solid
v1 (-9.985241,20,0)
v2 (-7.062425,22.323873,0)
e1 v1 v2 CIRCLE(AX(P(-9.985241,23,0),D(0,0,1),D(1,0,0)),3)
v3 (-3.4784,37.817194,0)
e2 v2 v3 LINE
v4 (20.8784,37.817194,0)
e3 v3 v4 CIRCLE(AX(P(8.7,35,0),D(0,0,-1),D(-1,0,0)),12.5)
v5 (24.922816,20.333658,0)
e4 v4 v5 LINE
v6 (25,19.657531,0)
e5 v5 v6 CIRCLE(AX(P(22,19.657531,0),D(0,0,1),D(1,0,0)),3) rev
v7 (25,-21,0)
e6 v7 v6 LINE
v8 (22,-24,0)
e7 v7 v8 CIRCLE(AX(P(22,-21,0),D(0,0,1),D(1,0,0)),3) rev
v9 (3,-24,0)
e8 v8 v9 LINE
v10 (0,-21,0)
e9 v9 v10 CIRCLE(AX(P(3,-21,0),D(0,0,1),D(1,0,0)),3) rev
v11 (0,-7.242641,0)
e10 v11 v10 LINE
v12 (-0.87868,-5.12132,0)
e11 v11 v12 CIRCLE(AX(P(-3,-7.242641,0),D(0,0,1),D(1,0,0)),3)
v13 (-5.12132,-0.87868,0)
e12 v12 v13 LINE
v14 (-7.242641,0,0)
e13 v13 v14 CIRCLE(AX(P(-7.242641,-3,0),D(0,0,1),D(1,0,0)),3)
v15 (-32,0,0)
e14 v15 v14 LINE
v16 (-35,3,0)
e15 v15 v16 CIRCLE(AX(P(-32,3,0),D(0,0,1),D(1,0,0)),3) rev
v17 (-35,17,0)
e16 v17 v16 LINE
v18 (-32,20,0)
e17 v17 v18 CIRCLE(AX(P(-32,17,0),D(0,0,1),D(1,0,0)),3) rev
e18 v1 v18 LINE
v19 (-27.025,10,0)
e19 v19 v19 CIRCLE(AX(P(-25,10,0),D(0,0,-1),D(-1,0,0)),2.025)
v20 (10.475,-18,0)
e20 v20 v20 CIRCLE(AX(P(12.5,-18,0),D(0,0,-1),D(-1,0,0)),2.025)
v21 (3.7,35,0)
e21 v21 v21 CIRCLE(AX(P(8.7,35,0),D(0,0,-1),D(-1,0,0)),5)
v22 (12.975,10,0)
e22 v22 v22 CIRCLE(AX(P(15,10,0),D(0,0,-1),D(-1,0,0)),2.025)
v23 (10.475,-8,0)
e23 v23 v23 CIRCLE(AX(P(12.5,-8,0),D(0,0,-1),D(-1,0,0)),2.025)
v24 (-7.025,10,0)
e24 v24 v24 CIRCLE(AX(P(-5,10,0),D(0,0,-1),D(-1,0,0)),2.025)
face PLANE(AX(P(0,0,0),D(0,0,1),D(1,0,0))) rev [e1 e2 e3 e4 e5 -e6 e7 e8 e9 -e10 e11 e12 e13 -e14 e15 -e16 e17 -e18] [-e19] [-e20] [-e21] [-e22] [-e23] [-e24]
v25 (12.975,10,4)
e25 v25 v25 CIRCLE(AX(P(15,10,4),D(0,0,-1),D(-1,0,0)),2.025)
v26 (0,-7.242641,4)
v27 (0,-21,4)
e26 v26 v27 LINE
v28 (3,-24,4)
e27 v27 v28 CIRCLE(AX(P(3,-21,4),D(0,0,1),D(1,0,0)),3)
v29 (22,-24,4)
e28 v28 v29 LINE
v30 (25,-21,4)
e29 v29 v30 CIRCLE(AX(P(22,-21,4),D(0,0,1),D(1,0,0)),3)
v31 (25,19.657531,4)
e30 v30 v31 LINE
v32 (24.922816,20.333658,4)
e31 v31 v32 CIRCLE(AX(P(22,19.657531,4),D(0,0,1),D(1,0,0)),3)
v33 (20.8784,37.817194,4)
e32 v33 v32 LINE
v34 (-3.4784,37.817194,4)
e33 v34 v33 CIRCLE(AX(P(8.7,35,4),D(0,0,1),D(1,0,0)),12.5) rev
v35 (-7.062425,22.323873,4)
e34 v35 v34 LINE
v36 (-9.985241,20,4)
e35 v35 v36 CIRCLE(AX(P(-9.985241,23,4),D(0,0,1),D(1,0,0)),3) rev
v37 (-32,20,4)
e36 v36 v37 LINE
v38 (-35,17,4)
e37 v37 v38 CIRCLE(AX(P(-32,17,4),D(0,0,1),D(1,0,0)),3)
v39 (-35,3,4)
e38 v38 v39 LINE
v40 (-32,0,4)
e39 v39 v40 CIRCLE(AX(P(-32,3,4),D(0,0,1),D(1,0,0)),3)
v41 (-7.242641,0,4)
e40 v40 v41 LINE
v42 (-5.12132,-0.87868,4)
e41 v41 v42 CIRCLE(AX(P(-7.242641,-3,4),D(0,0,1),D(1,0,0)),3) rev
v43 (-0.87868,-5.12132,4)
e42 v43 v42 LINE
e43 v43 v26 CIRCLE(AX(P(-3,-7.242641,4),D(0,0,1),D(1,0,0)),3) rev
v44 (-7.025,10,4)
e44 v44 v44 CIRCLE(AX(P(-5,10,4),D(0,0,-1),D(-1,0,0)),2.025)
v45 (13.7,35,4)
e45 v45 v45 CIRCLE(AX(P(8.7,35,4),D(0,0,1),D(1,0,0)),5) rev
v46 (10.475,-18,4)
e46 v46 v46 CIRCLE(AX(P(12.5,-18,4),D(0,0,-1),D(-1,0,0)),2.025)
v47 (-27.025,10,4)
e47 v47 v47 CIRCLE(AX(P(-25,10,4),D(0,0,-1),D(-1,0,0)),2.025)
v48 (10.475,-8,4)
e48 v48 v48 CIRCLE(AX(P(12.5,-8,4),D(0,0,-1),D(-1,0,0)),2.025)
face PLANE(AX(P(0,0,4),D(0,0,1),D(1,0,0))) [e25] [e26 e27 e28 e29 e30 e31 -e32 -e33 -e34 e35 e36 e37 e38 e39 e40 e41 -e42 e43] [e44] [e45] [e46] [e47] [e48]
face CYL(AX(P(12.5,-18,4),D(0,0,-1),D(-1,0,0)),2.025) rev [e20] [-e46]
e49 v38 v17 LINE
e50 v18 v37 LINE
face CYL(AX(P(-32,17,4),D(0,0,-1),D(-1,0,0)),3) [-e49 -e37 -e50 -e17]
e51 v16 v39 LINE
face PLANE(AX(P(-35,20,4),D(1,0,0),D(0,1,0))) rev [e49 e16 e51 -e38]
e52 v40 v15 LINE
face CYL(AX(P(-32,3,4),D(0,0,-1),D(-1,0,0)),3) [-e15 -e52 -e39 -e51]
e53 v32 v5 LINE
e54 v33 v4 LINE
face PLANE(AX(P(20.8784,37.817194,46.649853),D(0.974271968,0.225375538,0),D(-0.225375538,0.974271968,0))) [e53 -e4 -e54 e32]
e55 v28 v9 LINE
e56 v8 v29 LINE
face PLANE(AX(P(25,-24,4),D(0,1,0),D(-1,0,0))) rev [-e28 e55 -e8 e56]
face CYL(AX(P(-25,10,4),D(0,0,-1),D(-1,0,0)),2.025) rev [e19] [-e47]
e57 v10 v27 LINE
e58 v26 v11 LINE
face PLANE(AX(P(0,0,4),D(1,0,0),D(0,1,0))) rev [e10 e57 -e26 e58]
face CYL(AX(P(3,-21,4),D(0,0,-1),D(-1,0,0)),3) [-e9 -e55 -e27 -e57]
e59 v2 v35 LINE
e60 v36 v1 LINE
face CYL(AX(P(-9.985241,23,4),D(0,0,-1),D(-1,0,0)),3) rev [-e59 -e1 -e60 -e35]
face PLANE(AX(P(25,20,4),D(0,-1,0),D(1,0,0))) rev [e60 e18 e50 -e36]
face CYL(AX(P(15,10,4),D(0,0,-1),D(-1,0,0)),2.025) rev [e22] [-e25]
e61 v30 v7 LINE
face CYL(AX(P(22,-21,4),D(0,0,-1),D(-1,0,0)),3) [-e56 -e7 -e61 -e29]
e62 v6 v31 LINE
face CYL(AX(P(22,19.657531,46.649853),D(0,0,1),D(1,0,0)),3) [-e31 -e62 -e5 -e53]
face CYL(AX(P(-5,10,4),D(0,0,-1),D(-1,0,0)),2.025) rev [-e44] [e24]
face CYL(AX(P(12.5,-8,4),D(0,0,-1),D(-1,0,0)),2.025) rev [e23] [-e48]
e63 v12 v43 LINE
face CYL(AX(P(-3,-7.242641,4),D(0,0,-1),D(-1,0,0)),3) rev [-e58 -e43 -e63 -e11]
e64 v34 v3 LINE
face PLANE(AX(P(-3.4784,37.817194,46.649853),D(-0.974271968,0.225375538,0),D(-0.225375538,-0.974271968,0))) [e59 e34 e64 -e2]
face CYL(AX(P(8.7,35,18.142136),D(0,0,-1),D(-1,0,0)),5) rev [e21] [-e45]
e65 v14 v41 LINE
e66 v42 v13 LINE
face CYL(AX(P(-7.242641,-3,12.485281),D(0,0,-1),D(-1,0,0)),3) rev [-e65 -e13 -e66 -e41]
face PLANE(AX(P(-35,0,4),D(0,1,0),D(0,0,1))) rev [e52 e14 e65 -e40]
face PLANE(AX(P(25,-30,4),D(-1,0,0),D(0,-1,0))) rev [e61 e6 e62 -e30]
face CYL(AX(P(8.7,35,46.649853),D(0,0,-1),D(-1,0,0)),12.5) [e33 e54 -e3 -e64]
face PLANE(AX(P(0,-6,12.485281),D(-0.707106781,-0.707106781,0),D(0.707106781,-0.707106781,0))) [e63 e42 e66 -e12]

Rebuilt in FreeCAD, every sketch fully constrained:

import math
import FreeCAD as App
import Part
import Sketcher
from FreeCAD import Vector
Q = App.Units.Quantity


def edges_at(feature, points):
    """Names of the edges that pass closest to the given points."""
    edges = feature.Shape.Edges
    near = lambda p: min(range(len(edges)), key=lambda i: edges[i].distToShape(Part.Vertex(*p))[0])
    return sorted({f"Edge{near(p) + 1}" for p in points})

doc = App.newDocument("Part")
body = doc.addObject("PartDesign::Body", "Body")

# Sketch on XY plane
sketch1 = body.newObject("Sketcher::SketchObject", "Sketch")
sketch1.AttachmentSupport = (doc.getObject("XY_Plane"), [""])
sketch1.MapMode = "FlatFace"
sketch1.addGeometry(Part.LineSegment(Vector(-35, 0, 0), Vector(0, 0, 0)), False)
sketch1.addGeometry(Part.LineSegment(Vector(0, 0, 0), Vector(0, -30, 0)), False)
sketch1.addGeometry(Part.LineSegment(Vector(0, -30, 0), Vector(25, -30, 0)), False)
sketch1.addGeometry(Part.LineSegment(Vector(25, -30, 0), Vector(25, 20, 0)), False)
sketch1.addGeometry(Part.LineSegment(Vector(25, 20, 0), Vector(-35, 20, 0)), False)
sketch1.addGeometry(Part.LineSegment(Vector(-35, 20, 0), Vector(-35, 0, 0)), False)
sketch1.addConstraint(Sketcher.Constraint("Coincident", 0, 2, 1, 1))
sketch1.addConstraint(Sketcher.Constraint("Coincident", 1, 2, 2, 1))
sketch1.addConstraint(Sketcher.Constraint("Coincident", 2, 2, 3, 1))
sketch1.addConstraint(Sketcher.Constraint("Coincident", 3, 2, 4, 1))
sketch1.addConstraint(Sketcher.Constraint("Coincident", 4, 2, 5, 1))
sketch1.addConstraint(Sketcher.Constraint("Coincident", 5, 2, 0, 1))
sketch1.addConstraint(Sketcher.Constraint("Horizontal", 0))
sketch1.addConstraint(Sketcher.Constraint("Vertical", 1))
sketch1.addConstraint(Sketcher.Constraint("Horizontal", 2))
sketch1.addConstraint(Sketcher.Constraint("Vertical", 3))
sketch1.addConstraint(Sketcher.Constraint("Horizontal", 4))
sketch1.addConstraint(Sketcher.Constraint("Vertical", 5))
sketch1.addConstraint(Sketcher.Constraint("Coincident", 0, 2, -1, 1))
sketch1.addConstraint(Sketcher.Constraint("DistanceX", 0, 1, 0, 2, Q("35 mm")))
sketch1.addConstraint(Sketcher.Constraint("DistanceX", 2, 1, 2, 2, Q("25 mm")))
sketch1.addConstraint(Sketcher.Constraint("DistanceY", 1, 2, 1, 1, Q("30 mm")))
sketch1.addConstraint(Sketcher.Constraint("DistanceY", 3, 1, 3, 2, Q("50 mm")))
pad1 = body.newObject("PartDesign::Pad", "Pad")
pad1.Profile = sketch1
pad1.Length = 4

# Sketch on XY plane
sketch2 = body.newObject("Sketcher::SketchObject", "Sketch001")
sketch2.AttachmentSupport = (doc.getObject("XY_Plane"), [""])
sketch2.MapMode = "FlatFace"
sketch2.addGeometry(Part.LineSegment(Vector(15.347247, 38.473342, 0), Vector(25, 20, 0)), False)
sketch2.addGeometry(Part.LineSegment(Vector(25, 20, 0), Vector(-7.6, 20, 0)), False)
sketch2.addGeometry(Part.LineSegment(Vector(-7.6, 20, 0), Vector(2.052753, 38.473342, 0)), False)
sketch2.addGeometry(Part.ArcOfCircle(Part.Circle(Vector(8.7, 35, 0), Vector(0, 0, 1), 7.5), math.radians(27.588119), math.radians(152.411881)), False)
sketch2.addConstraint(Sketcher.Constraint("Coincident", 0, 2, 1, 1))
sketch2.addConstraint(Sketcher.Constraint("Coincident", 1, 2, 2, 1))
sketch2.addConstraint(Sketcher.Constraint("Tangent", 2, 2, 3, 2))
sketch2.addConstraint(Sketcher.Constraint("Tangent", 3, 1, 0, 1))
sketch2.addConstraint(Sketcher.Constraint("Horizontal", 1))
sketch2.addConstraint(Sketcher.Constraint("Horizontal", 2, 2, 3, 1))
sketch2.addConstraint(Sketcher.Constraint("Radius", 3, Q("7.5 mm")))
sketch2.addConstraint(Sketcher.Constraint("DistanceX", 1, 2, 1, 1, Q("32.6 mm")))
sketch2.addConstraint(Sketcher.Constraint("DistanceY", -1, 1, 3, 3, Q("35 mm")))
sketch2.addConstraint(Sketcher.Constraint("DistanceX", -1, 1, 0, 2, Q("25 mm")))
sketch2.addConstraint(Sketcher.Constraint("DistanceY", -1, 1, 0, 2, Q("20 mm")))
pad2 = body.newObject("PartDesign::Pad", "Pad001")
pad2.Profile = sketch2
pad2.Length = 4

# Sketch on XY plane
sketch3 = body.newObject("Sketcher::SketchObject", "Sketch002")
sketch3.AttachmentSupport = (doc.getObject("XY_Plane"), [""])
sketch3.MapMode = "FlatFace"
sketch3.addGeometry(Part.Circle(Vector(8.7, 35, 0), Vector(0, 0, 1), 5), False)
sketch3.addConstraint(Sketcher.Constraint("Diameter", 0, Q("10 mm")))
sketch3.addConstraint(Sketcher.Constraint("DistanceY", -1, 1, 0, 3, Q("35 mm")))
sketch3.addConstraint(Sketcher.Constraint("DistanceX", -1, 1, 0, 3, Q("8.7 mm")))
pocket1 = body.newObject("PartDesign::Pocket", "Pocket")
pocket1.Profile = sketch3
pocket1.Length = 4
pocket1.Reversed = True

# Sketch on XY plane
sketch4 = body.newObject("Sketcher::SketchObject", "Sketch003")
sketch4.AttachmentSupport = (doc.getObject("XY_Plane"), [""])
sketch4.MapMode = "FlatFace"
sketch4.addGeometry(Part.LineSegment(Vector(25, -24, 0), Vector(25, -30, 0)), False)
sketch4.addGeometry(Part.LineSegment(Vector(25, -30, 0), Vector(0, -30, 0)), False)
sketch4.addGeometry(Part.LineSegment(Vector(0, -30, 0), Vector(0, -24, 0)), False)
sketch4.addGeometry(Part.LineSegment(Vector(0, -24, 0), Vector(25, -24, 0)), False)
sketch4.addConstraint(Sketcher.Constraint("Coincident", 0, 2, 1, 1))
sketch4.addConstraint(Sketcher.Constraint("Coincident", 1, 2, 2, 1))
sketch4.addConstraint(Sketcher.Constraint("Coincident", 2, 2, 3, 1))
sketch4.addConstraint(Sketcher.Constraint("Coincident", 3, 2, 0, 1))
sketch4.addConstraint(Sketcher.Constraint("Vertical", 0))
sketch4.addConstraint(Sketcher.Constraint("Horizontal", 1))
sketch4.addConstraint(Sketcher.Constraint("Vertical", 2))
sketch4.addConstraint(Sketcher.Constraint("Horizontal", 3))
sketch4.addConstraint(Sketcher.Constraint("PointOnObject", 1, 2, -2))
sketch4.addConstraint(Sketcher.Constraint("DistanceX", 1, 2, 1, 1, Q("25 mm")))
sketch4.addConstraint(Sketcher.Constraint("DistanceY", 0, 2, 0, 1, Q("6 mm")))
sketch4.addConstraint(Sketcher.Constraint("DistanceY", 0, 2, -1, 1, Q("30 mm")))
pocket2 = body.newObject("PartDesign::Pocket", "Pocket001")
pocket2.Profile = sketch4
pocket2.Type = "ThroughAll"
pocket2.Midplane = True

# Sketch on XY plane
sketch5 = body.newObject("Sketcher::SketchObject", "Sketch004")
sketch5.AttachmentSupport = (doc.getObject("XY_Plane"), [""])
sketch5.MapMode = "FlatFace"
sketch5.addGeometry(Part.Circle(Vector(12.5, -8, 0), Vector(0, 0, 1), 2.025), False)
sketch5.addGeometry(Part.Circle(Vector(12.5, -18, 0), Vector(0, 0, 1), 2.025), False)
sketch5.addConstraint(Sketcher.Constraint("Equal", 0, 1))
sketch5.addConstraint(Sketcher.Constraint("Vertical", 0, 3, 1, 3))
sketch5.addConstraint(Sketcher.Constraint("Diameter", 0, Q("4.05 mm")))
sketch5.addConstraint(Sketcher.Constraint("DistanceY", 0, 3, -1, 1, Q("8 mm")))
sketch5.addConstraint(Sketcher.Constraint("DistanceY", 1, 3, -1, 1, Q("18 mm")))
sketch5.addConstraint(Sketcher.Constraint("DistanceX", -1, 1, 0, 3, Q("12.5 mm")))
pocket3 = body.newObject("PartDesign::Pocket", "Pocket002")
pocket3.Profile = sketch5
pocket3.Type = "ThroughAll"
pocket3.Midplane = True

# Sketch on XY plane
sketch6 = body.newObject("Sketcher::SketchObject", "Sketch005")
sketch6.AttachmentSupport = (doc.getObject("XY_Plane"), [""])
sketch6.MapMode = "FlatFace"
sketch6.addGeometry(Part.LineSegment(Vector(20.8784, 37.817194, 0), Vector(25, 20, 0)), False)
sketch6.addGeometry(Part.LineSegment(Vector(25, 20, 0), Vector(-7.6, 20, 0)), False)
sketch6.addGeometry(Part.LineSegment(Vector(-7.6, 20, 0), Vector(-3.4784, 37.817194, 0)), False)
sketch6.addGeometry(Part.ArcOfCircle(Part.Circle(Vector(8.7, 35, 0), Vector(0, 0, 1), 12.5), math.radians(13.024962), math.radians(166.975038)), False)
sketch6.addGeometry(Part.Circle(Vector(8.7, 35, 0), Vector(0, 0, 1), 5), False)
sketch6.addConstraint(Sketcher.Constraint("Coincident", 0, 2, 1, 1))
sketch6.addConstraint(Sketcher.Constraint("Coincident", 1, 2, 2, 1))
sketch6.addConstraint(Sketcher.Constraint("Tangent", 2, 2, 3, 2))
sketch6.addConstraint(Sketcher.Constraint("Tangent", 3, 1, 0, 1))
sketch6.addConstraint(Sketcher.Constraint("Horizontal", 1))
sketch6.addConstraint(Sketcher.Constraint("Coincident", 4, 3, 3, 3))
sketch6.addConstraint(Sketcher.Constraint("Horizontal", 2, 2, 3, 1))
sketch6.addConstraint(Sketcher.Constraint("Diameter", 4, Q("10 mm")))
sketch6.addConstraint(Sketcher.Constraint("Radius", 3, Q("12.5 mm")))
sketch6.addConstraint(Sketcher.Constraint("DistanceX", 1, 2, 1, 1, Q("32.6 mm")))
sketch6.addConstraint(Sketcher.Constraint("DistanceY", -1, 1, 3, 3, Q("35 mm")))
sketch6.addConstraint(Sketcher.Constraint("DistanceX", -1, 1, 0, 2, Q("25 mm")))
sketch6.addConstraint(Sketcher.Constraint("DistanceY", -1, 1, 0, 2, Q("20 mm")))
pad3 = body.newObject("PartDesign::Pad", "Pad002")
pad3.Profile = sketch6
pad3.Length = 4

# Sketch on XY plane
sketch7 = body.newObject("Sketcher::SketchObject", "Sketch006")
sketch7.AttachmentSupport = (doc.getObject("XY_Plane"), [""])
sketch7.MapMode = "FlatFace"
sketch7.addGeometry(Part.Circle(Vector(15, 10, 0), Vector(0, 0, 1), 2.025), False)
sketch7.addGeometry(Part.Circle(Vector(-5, 10, 0), Vector(0, 0, 1), 2.025), False)
sketch7.addGeometry(Part.Circle(Vector(-25, 10, 0), Vector(0, 0, 1), 2.025), False)
sketch7.addConstraint(Sketcher.Constraint("Equal", 0, 1))
sketch7.addConstraint(Sketcher.Constraint("Equal", 1, 2))
sketch7.addConstraint(Sketcher.Constraint("Horizontal", 0, 3, 1, 3))
sketch7.addConstraint(Sketcher.Constraint("Horizontal", 1, 3, 2, 3))
sketch7.addConstraint(Sketcher.Constraint("Diameter", 0, Q("4.05 mm")))
sketch7.addConstraint(Sketcher.Constraint("DistanceX", -1, 1, 0, 3, Q("15 mm")))
sketch7.addConstraint(Sketcher.Constraint("DistanceY", -1, 1, 0, 3, Q("10 mm")))
sketch7.addConstraint(Sketcher.Constraint("DistanceX", 1, 3, -1, 1, Q("5 mm")))
sketch7.addConstraint(Sketcher.Constraint("DistanceX", 2, 3, -1, 1, Q("25 mm")))
pocket4 = body.newObject("PartDesign::Pocket", "Pocket003")
pocket4.Profile = sketch7
pocket4.Type = "ThroughAll"
pocket4.Midplane = True

# Sketch on XY plane
sketch8 = body.newObject("Sketcher::SketchObject", "Sketch007")
sketch8.AttachmentSupport = (doc.getObject("XY_Plane"), [""])
sketch8.MapMode = "FlatFace"
sketch8.addGeometry(Part.LineSegment(Vector(0, -6, 0), Vector(-6, 0, 0)), False)
sketch8.addGeometry(Part.LineSegment(Vector(-6, 0, 0), Vector(0, 0, 0)), False)
sketch8.addGeometry(Part.LineSegment(Vector(0, 0, 0), Vector(0, -6, 0)), False)
sketch8.addConstraint(Sketcher.Constraint("Coincident", 0, 2, 1, 1))
sketch8.addConstraint(Sketcher.Constraint("Coincident", 1, 2, 2, 1))
sketch8.addConstraint(Sketcher.Constraint("Coincident", 2, 2, 0, 1))
sketch8.addConstraint(Sketcher.Constraint("Horizontal", 1))
sketch8.addConstraint(Sketcher.Constraint("Vertical", 2))
sketch8.addConstraint(Sketcher.Constraint("Coincident", 1, 2, -1, 1))
sketch8.addConstraint(Sketcher.Constraint("Equal", 1, 2))
sketch8.addConstraint(Sketcher.Constraint("DistanceX", 1, 1, 1, 2, Q("6 mm")))
pad4 = body.newObject("PartDesign::Pad", "Pad003")
pad4.Profile = sketch8
pad4.Length = 4
doc.recompute()

fillet = body.newObject("PartDesign::Fillet", "Fillet")
fillet.Base = (pad4, edges_at(pad4, [
    (-6, 0, 2),
    (0, -6, 2),
    (-35, 20, 2),
    (25, 20, 2),
    (-35, 0, 2),
    (-7.6, 20, 2),
    (25, -24, 2),
    (0, -24, 2),
]))
fillet.Radius = 3

doc.recompute()
